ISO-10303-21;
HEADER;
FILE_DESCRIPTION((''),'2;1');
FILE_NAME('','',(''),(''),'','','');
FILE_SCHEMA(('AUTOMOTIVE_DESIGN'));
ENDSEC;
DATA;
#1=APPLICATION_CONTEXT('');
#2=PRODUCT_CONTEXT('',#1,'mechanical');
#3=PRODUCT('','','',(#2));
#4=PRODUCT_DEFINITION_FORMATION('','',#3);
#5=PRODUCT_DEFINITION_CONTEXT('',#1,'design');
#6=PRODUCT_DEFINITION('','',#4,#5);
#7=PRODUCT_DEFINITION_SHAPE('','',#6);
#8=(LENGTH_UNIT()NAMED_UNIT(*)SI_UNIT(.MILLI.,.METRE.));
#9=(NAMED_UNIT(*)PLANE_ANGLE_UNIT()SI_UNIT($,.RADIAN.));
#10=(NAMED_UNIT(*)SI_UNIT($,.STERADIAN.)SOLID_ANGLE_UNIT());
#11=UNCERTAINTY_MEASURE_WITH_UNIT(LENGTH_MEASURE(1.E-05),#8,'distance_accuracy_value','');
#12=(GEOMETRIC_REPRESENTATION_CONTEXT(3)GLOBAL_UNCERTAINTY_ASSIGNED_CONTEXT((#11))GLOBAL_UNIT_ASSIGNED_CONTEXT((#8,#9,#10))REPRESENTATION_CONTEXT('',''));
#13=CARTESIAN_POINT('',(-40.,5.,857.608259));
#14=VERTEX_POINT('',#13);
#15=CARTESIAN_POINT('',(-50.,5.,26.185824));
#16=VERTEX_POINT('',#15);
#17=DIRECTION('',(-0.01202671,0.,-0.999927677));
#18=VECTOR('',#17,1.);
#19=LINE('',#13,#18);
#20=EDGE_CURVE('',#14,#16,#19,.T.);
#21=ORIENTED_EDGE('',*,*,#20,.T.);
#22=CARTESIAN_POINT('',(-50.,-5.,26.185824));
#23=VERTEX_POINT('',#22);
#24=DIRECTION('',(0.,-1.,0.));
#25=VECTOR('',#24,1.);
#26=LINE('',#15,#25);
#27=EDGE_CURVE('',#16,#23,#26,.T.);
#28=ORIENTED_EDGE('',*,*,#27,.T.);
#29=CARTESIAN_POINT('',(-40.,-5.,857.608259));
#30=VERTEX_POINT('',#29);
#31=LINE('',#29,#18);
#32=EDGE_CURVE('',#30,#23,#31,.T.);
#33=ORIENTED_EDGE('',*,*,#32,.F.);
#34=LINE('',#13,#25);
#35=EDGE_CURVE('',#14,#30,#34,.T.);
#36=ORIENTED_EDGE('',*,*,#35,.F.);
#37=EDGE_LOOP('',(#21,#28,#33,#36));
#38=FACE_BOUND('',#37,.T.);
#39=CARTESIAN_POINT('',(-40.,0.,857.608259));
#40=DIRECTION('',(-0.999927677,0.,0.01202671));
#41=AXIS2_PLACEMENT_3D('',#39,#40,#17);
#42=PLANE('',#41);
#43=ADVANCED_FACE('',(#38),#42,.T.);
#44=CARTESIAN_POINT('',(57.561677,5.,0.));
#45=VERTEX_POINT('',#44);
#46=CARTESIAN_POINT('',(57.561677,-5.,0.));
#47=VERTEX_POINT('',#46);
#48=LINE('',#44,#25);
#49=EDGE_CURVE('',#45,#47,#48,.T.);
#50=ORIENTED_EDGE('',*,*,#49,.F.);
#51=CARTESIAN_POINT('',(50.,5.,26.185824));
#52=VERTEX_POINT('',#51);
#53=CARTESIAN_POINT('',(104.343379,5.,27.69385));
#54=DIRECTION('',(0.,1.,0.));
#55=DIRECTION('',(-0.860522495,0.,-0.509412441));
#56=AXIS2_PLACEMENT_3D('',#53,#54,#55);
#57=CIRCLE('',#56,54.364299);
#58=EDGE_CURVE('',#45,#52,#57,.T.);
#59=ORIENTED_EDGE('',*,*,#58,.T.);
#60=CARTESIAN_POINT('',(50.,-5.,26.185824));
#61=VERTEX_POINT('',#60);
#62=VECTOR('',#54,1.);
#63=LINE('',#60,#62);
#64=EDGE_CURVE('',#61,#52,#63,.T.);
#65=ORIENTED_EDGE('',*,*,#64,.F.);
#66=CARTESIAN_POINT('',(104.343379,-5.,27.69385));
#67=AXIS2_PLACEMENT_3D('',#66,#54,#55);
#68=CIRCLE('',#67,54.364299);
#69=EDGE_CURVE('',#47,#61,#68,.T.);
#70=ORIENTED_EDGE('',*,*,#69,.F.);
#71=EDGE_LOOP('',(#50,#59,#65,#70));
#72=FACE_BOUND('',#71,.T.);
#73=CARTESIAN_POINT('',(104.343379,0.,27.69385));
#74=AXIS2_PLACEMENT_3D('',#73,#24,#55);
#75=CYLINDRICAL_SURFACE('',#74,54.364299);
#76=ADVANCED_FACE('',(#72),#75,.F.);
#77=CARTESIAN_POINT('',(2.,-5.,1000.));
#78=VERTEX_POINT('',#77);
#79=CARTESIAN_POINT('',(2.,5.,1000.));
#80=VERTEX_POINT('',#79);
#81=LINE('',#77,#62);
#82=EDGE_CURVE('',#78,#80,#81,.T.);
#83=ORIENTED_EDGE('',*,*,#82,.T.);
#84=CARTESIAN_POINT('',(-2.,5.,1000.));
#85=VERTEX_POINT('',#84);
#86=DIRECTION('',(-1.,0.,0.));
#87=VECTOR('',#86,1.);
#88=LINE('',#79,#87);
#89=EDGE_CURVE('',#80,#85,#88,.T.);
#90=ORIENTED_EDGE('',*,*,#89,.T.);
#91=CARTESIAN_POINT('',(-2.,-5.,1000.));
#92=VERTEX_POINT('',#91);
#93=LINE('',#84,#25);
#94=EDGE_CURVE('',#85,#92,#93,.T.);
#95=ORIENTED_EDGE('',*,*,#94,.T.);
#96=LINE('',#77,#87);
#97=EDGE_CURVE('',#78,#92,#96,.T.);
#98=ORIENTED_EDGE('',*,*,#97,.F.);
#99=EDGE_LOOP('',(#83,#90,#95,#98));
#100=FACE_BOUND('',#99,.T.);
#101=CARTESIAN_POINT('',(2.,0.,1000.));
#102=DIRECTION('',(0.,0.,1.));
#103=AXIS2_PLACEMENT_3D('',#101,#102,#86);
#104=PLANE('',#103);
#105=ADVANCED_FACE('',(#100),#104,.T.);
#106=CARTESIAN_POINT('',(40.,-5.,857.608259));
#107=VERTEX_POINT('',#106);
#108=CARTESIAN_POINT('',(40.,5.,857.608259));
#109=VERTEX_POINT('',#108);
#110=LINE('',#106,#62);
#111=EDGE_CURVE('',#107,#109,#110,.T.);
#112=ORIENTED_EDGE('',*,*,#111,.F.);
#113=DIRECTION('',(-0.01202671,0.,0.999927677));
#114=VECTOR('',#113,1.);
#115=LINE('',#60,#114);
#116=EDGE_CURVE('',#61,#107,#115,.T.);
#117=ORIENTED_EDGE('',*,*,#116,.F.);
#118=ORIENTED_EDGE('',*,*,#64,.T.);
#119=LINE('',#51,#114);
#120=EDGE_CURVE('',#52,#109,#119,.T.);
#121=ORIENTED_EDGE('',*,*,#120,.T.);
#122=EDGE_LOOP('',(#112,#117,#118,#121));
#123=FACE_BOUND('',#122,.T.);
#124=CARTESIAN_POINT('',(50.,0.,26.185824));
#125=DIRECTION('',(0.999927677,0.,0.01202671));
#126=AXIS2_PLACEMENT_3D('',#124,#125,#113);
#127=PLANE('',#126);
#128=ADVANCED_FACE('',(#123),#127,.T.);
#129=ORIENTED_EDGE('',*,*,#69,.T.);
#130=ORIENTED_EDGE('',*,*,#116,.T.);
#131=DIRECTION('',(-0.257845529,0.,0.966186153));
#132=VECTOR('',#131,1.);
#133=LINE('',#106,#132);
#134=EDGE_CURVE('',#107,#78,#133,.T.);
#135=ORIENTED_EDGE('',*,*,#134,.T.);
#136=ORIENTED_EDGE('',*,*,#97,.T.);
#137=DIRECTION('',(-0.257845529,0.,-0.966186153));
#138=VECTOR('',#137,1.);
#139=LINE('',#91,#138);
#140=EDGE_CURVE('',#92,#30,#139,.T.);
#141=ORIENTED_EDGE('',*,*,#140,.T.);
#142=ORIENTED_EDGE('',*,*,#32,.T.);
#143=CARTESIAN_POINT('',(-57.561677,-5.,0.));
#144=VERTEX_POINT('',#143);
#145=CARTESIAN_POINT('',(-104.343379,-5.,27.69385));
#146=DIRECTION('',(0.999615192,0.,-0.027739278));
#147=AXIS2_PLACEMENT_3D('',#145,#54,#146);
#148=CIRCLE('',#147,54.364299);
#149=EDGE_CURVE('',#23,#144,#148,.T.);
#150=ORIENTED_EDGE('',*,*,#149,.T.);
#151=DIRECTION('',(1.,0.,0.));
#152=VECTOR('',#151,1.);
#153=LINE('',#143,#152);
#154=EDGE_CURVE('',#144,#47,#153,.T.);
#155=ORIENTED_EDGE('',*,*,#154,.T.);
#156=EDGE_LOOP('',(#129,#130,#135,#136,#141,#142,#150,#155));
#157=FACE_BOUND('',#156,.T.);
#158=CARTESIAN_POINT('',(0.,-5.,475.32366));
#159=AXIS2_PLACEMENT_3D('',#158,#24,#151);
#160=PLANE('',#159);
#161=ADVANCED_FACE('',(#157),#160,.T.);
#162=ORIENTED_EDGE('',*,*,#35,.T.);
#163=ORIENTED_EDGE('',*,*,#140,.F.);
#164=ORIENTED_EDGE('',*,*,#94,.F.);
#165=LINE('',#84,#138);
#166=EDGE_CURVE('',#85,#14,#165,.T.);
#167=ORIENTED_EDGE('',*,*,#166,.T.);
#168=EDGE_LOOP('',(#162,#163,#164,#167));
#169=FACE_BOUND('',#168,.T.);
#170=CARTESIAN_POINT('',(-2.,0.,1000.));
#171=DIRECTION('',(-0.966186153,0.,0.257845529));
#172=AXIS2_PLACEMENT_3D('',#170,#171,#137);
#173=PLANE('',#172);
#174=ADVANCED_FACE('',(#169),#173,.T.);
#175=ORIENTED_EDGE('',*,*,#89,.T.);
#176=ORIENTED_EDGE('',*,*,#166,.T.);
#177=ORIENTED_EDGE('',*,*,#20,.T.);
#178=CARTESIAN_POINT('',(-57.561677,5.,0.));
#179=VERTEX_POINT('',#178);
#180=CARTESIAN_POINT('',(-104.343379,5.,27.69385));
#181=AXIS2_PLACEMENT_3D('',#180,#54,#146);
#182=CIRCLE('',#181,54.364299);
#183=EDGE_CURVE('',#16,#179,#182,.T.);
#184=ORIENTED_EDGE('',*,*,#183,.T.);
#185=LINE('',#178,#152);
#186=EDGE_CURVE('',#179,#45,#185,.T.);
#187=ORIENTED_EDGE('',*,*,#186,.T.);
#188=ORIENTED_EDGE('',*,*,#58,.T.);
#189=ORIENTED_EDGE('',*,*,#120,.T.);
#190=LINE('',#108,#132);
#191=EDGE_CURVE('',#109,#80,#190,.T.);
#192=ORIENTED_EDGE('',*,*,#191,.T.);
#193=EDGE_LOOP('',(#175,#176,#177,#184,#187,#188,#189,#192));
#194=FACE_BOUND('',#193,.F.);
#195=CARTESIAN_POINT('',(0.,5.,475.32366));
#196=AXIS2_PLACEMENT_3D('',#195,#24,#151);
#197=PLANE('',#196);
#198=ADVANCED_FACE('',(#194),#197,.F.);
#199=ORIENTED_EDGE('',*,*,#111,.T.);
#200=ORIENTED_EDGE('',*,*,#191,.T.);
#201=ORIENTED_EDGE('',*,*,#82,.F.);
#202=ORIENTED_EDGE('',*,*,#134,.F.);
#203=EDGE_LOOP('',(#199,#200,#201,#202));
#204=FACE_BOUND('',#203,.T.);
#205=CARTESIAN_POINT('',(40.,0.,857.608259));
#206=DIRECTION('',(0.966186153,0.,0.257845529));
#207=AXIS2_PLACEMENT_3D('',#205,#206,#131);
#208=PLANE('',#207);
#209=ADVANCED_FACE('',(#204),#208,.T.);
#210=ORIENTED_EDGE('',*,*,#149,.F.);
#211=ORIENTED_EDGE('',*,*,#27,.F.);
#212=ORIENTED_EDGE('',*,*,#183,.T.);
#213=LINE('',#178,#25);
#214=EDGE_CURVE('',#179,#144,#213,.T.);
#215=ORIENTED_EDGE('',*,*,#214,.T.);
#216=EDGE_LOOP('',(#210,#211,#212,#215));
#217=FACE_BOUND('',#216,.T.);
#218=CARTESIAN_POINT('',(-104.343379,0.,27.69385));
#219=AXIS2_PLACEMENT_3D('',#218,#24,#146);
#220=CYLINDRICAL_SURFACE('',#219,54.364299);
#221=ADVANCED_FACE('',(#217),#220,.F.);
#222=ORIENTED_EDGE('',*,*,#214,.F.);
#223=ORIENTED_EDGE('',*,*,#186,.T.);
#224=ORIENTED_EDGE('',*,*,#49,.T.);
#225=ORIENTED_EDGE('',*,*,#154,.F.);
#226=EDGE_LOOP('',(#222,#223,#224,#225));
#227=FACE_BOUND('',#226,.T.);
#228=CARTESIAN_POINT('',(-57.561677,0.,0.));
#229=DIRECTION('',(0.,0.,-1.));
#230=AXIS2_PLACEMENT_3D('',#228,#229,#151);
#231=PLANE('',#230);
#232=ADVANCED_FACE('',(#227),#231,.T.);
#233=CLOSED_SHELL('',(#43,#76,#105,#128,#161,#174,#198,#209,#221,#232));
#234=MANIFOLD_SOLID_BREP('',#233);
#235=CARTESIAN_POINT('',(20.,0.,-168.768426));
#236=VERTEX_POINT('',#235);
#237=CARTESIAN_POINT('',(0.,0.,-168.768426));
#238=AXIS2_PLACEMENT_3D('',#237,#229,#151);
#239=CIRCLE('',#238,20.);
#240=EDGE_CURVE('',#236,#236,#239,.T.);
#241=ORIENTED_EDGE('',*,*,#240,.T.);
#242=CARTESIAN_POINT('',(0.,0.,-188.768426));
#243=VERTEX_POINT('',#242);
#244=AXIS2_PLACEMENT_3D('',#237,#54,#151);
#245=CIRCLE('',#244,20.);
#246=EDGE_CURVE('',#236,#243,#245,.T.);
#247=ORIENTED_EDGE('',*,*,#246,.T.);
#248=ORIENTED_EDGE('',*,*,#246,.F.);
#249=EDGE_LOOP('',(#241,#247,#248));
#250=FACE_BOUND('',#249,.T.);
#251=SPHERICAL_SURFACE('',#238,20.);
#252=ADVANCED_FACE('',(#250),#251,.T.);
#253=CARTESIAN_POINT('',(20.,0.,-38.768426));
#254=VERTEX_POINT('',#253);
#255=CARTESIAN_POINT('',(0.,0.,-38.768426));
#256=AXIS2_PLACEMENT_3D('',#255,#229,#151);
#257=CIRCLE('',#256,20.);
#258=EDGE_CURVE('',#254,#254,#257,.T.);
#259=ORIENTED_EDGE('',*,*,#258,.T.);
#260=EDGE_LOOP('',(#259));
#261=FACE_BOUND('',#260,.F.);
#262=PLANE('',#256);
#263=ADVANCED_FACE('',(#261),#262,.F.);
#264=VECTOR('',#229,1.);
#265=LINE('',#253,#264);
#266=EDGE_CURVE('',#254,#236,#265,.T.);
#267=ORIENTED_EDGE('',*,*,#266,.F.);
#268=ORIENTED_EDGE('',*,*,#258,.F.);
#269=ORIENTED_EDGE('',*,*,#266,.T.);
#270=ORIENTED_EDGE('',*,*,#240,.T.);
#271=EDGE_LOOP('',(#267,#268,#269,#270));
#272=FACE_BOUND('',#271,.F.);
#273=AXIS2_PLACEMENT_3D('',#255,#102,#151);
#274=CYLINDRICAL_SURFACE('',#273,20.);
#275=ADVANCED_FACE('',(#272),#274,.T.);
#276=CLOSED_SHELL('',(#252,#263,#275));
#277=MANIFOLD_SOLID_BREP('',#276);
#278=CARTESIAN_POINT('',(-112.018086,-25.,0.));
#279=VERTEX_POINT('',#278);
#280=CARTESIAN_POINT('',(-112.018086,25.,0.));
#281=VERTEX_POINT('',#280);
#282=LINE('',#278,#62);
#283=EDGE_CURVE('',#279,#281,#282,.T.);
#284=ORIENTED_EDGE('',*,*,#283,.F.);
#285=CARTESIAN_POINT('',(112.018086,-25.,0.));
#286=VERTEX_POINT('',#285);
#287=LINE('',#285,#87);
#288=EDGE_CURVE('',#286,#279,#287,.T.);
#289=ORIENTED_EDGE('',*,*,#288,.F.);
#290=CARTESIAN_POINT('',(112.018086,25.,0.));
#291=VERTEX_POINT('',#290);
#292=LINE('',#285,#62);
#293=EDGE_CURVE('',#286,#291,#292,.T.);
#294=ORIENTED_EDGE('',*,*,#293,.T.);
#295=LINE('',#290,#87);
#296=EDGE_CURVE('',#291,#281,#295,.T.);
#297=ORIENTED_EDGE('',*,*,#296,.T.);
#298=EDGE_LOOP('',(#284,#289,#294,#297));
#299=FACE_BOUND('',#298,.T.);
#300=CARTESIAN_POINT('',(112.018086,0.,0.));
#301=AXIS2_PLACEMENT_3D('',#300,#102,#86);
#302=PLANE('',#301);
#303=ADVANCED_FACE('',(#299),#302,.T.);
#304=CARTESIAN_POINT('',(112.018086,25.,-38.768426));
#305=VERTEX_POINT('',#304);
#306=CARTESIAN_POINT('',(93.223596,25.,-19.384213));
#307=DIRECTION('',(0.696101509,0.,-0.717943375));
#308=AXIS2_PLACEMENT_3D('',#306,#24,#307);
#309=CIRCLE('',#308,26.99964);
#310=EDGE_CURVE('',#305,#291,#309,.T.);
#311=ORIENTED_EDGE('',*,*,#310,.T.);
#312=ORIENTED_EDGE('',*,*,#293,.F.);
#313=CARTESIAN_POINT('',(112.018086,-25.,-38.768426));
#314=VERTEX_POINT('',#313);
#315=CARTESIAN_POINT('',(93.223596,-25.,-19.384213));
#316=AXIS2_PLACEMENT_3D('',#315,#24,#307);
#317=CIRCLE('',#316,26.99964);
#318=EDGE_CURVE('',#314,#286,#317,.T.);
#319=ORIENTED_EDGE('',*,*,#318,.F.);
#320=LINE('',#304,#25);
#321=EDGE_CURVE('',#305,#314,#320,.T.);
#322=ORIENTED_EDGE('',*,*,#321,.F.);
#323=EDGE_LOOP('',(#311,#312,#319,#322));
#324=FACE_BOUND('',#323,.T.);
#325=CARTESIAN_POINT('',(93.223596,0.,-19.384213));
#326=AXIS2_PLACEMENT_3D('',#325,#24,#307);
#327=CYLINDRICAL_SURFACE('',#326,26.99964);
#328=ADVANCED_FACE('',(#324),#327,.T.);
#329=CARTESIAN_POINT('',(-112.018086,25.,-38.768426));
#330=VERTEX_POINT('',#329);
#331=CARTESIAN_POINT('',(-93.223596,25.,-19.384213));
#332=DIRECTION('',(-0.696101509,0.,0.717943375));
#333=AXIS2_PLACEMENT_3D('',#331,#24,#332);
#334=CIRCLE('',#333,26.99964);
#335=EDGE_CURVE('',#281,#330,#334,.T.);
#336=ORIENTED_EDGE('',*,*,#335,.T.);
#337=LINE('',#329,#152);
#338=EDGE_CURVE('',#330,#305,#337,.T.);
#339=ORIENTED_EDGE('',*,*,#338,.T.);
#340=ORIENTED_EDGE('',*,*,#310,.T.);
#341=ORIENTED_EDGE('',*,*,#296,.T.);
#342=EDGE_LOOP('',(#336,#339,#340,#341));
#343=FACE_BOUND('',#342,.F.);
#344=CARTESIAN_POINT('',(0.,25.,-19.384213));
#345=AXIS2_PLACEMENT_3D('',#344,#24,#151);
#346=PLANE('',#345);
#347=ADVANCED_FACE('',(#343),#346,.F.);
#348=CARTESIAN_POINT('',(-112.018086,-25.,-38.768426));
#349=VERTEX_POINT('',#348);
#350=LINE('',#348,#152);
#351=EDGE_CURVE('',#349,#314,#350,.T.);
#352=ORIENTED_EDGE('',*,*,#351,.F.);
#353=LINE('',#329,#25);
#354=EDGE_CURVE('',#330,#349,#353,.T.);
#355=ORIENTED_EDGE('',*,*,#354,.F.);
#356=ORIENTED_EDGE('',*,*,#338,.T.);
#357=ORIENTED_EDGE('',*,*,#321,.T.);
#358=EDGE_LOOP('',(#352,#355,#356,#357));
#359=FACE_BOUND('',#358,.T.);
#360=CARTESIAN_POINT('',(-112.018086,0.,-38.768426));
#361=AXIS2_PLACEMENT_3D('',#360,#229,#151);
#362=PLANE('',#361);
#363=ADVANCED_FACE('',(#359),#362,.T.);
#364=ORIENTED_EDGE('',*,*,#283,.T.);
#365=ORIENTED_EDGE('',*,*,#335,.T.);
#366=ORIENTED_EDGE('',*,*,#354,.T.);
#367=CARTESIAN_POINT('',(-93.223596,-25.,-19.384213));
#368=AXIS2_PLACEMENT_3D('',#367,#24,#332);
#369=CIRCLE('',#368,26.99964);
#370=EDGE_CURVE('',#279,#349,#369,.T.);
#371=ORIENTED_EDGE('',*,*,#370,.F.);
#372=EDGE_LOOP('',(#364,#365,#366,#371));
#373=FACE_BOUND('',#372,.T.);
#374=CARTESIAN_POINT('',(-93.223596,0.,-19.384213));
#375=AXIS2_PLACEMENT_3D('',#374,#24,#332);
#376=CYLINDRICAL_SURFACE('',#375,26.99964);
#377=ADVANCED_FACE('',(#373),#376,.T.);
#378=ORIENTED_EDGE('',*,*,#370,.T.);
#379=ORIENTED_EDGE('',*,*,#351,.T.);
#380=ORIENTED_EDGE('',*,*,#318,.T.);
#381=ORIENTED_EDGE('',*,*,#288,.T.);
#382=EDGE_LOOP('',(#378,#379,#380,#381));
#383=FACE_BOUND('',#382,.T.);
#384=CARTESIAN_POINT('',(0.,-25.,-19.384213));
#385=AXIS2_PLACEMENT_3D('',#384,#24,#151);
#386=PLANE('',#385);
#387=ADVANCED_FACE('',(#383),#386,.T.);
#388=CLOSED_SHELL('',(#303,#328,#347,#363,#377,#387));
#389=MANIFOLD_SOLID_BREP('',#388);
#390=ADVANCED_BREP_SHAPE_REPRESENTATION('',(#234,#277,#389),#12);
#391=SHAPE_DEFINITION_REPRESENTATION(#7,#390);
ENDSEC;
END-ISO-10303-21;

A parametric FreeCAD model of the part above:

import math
import FreeCAD as App
import Part
import Sketcher
from FreeCAD import Vector
Q = App.Units.Quantity


def edges_at(feature, points):
    """Names of the edges that pass closest to the given points."""
    edges = feature.Shape.Edges
    near = lambda p: min(range(len(edges)), key=lambda i: edges[i].distToShape(Part.Vertex(*p))[0])
    return sorted({f"Edge{near(p) + 1}" for p in points})

doc = App.newDocument("Part")
body = doc.addObject("PartDesign::Body", "Body")

# Sketch on XZ plane
sketch1 = body.newObject("Sketcher::SketchObject", "Sketch")
sketch1.AttachmentSupport = (doc.getObject("XZ_Plane"), [""])
sketch1.MapMode = "FlatFace"
sketch1.addGeometry([
    Part.LineSegment(Vector(2, 1000, 0), Vector(-2, 1000, 0)),  # 0
    Part.LineSegment(Vector(-2, 1000, 0), Vector(-40, 857.6, 0)),  # 1
    Part.LineSegment(Vector(-40, 857.6, 0), Vector(-50, 26.2, 0)),  # 2
    Part.ArcOfCircle(Part.Circle(Vector(-104.3, 27.7, 0), Vector(0, 0, 1), 54.4), math.radians(-31), math.radians(-2)),  # 3
    Part.LineSegment(Vector(-57.6, 0, 0), Vector(57.6, 0, 0)),  # 4
    Part.ArcOfCircle(Part.Circle(Vector(104.3, 27.7, 0), Vector(0, 0, 1), 54.4), math.radians(-178), math.radians(-149)),  # 5
    Part.LineSegment(Vector(50, 26.2, 0), Vector(40, 857.6, 0)),  # 6
    Part.LineSegment(Vector(40, 857.6, 0), Vector(2, 1000, 0)),  # 7
], False)
sketch1.addConstraint([
    Sketcher.Constraint("Coincident", 0, 2, 1, 1),
    Sketcher.Constraint("Coincident", 1, 2, 2, 1),
    Sketcher.Constraint("Coincident", 2, 2, 3, 2),
    Sketcher.Constraint("Coincident", 3, 1, 4, 1),
    Sketcher.Constraint("Coincident", 4, 2, 5, 2),
    Sketcher.Constraint("Coincident", 5, 1, 6, 1),
    Sketcher.Constraint("Coincident", 6, 2, 7, 1),
    Sketcher.Constraint("Coincident", 7, 2, 0, 1),
    Sketcher.Constraint("Horizontal", 0),
    Sketcher.Constraint("Horizontal", 4),
    Sketcher.Constraint("Equal", 3, 5),
    Sketcher.Constraint("Symmetric", 3, 1, 4, 2, -1, 1),
    Sketcher.Constraint("Symmetric", 2, 2, 5, 1, -2),
    Sketcher.Constraint("Symmetric", 1, 2, 6, 2, -2),
    Sketcher.Constraint("Equal", 1, 7),
    Sketcher.Constraint("DistanceX", 0, 2, 0, 1, Q("4 mm")),
    Sketcher.Constraint("DistanceY", -1, 1, 0, 2, Q("1000 mm")),
    Sketcher.Constraint("DistanceX", 1, 2, -1, 1, Q("40 mm")),
    Sketcher.Constraint("DistanceX", 2, 2, -1, 1, Q("50 mm")),
    Sketcher.Constraint("Radius", 3, Q("54.364299 mm")),
    Sketcher.Constraint("Distance", 1, Q("147.375059 mm")),
    Sketcher.Constraint("Distance", 2, Q("831.482571 mm")),
    Sketcher.Constraint("DistanceX", 4, 1, 4, 2, Q("115.123354 mm")),
])
pad1 = body.newObject("PartDesign::Pad", "Pad")
pad1.Profile = sketch1
pad1.Length = 10
pad1.Midplane = True
body2 = doc.addObject("PartDesign::Body", "Body001")

# Sketch on XZ plane
sketch2 = body2.newObject("Sketcher::SketchObject", "Sketch001")
sketch2.AttachmentSupport = (doc.getObject("XZ_Plane001"), [""])
sketch2.MapMode = "FlatFace"
sketch2.addGeometry([
    Part.ArcOfCircle(Part.Circle(Vector(-93, -19, 0), Vector(0, 0, 1), 27), math.radians(134), math.radians(226)),
    Part.LineSegment(Vector(-112, -39, 0), Vector(112, -39, 0)),
    Part.ArcOfCircle(Part.Circle(Vector(93, -19, 0), Vector(0, 0, 1), 27), math.radians(-46), math.radians(46)),
    Part.LineSegment(Vector(112, 0, 0), Vector(-112, 0, 0)),
], False)
sketch2.addConstraint([
    Sketcher.Constraint("Coincident", 0, 2, 1, 1),
    Sketcher.Constraint("Coincident", 1, 2, 2, 1),
    Sketcher.Constraint("Coincident", 2, 2, 3, 1),
    Sketcher.Constraint("Coincident", 3, 2, 0, 1),
    Sketcher.Constraint("Horizontal", 1),
    Sketcher.Constraint("Horizontal", 3),
    Sketcher.Constraint("Equal", 0, 2),
    Sketcher.Constraint("Symmetric", 2, 2, 3, 2, -1, 1),
    Sketcher.Constraint("Horizontal", 0, 3, 2, 3),
    Sketcher.Constraint("Vertical", 1, 2, 2, 2),
    Sketcher.Constraint("Radius", 0, Q("26.99964 mm")),
    Sketcher.Constraint("DistanceX", 1, 1, 1, 2, Q("224.036172 mm")),
    Sketcher.Constraint("DistanceX", 0, 3, 2, 3, Q("186.447191 mm")),
])
pad2 = body2.newObject("PartDesign::Pad", "Pad001")
pad2.Profile = sketch2
pad2.Length = 50
pad2.Midplane = True
body3 = doc.addObject("PartDesign::Body", "Body002")

# Sketch on XY plane
sketch3 = body3.newObject("Sketcher::SketchObject", "Sketch002")
sketch3.AttachmentSupport = (doc.getObject("XY_Plane002"), [""])
sketch3.MapMode = "FlatFace"
sketch3.AttachmentOffset = App.Placement(Vector(0, 0, -38.768426), App.Rotation())
sketch3.addGeometry(Part.Circle(Vector(0, 0, 0), Vector(0, 0, 1), 20), False)
sketch3.addConstraint([
    Sketcher.Constraint("Coincident", 0, 3, -1, 1),
    Sketcher.Constraint("Diameter", 0, Q("40 mm")),
])
pad3 = body3.newObject("PartDesign::Pad", "Pad002")
pad3.Profile = sketch3
pad3.Length = 150
pad3.Reversed = True
doc.recompute()

fillet = body3.newObject("PartDesign::Fillet", "Fillet")
fillet.Base = (pad3, edges_at(pad3, [(-20, 0, -188.768)]))
fillet.Radius = 20

doc.recompute()
